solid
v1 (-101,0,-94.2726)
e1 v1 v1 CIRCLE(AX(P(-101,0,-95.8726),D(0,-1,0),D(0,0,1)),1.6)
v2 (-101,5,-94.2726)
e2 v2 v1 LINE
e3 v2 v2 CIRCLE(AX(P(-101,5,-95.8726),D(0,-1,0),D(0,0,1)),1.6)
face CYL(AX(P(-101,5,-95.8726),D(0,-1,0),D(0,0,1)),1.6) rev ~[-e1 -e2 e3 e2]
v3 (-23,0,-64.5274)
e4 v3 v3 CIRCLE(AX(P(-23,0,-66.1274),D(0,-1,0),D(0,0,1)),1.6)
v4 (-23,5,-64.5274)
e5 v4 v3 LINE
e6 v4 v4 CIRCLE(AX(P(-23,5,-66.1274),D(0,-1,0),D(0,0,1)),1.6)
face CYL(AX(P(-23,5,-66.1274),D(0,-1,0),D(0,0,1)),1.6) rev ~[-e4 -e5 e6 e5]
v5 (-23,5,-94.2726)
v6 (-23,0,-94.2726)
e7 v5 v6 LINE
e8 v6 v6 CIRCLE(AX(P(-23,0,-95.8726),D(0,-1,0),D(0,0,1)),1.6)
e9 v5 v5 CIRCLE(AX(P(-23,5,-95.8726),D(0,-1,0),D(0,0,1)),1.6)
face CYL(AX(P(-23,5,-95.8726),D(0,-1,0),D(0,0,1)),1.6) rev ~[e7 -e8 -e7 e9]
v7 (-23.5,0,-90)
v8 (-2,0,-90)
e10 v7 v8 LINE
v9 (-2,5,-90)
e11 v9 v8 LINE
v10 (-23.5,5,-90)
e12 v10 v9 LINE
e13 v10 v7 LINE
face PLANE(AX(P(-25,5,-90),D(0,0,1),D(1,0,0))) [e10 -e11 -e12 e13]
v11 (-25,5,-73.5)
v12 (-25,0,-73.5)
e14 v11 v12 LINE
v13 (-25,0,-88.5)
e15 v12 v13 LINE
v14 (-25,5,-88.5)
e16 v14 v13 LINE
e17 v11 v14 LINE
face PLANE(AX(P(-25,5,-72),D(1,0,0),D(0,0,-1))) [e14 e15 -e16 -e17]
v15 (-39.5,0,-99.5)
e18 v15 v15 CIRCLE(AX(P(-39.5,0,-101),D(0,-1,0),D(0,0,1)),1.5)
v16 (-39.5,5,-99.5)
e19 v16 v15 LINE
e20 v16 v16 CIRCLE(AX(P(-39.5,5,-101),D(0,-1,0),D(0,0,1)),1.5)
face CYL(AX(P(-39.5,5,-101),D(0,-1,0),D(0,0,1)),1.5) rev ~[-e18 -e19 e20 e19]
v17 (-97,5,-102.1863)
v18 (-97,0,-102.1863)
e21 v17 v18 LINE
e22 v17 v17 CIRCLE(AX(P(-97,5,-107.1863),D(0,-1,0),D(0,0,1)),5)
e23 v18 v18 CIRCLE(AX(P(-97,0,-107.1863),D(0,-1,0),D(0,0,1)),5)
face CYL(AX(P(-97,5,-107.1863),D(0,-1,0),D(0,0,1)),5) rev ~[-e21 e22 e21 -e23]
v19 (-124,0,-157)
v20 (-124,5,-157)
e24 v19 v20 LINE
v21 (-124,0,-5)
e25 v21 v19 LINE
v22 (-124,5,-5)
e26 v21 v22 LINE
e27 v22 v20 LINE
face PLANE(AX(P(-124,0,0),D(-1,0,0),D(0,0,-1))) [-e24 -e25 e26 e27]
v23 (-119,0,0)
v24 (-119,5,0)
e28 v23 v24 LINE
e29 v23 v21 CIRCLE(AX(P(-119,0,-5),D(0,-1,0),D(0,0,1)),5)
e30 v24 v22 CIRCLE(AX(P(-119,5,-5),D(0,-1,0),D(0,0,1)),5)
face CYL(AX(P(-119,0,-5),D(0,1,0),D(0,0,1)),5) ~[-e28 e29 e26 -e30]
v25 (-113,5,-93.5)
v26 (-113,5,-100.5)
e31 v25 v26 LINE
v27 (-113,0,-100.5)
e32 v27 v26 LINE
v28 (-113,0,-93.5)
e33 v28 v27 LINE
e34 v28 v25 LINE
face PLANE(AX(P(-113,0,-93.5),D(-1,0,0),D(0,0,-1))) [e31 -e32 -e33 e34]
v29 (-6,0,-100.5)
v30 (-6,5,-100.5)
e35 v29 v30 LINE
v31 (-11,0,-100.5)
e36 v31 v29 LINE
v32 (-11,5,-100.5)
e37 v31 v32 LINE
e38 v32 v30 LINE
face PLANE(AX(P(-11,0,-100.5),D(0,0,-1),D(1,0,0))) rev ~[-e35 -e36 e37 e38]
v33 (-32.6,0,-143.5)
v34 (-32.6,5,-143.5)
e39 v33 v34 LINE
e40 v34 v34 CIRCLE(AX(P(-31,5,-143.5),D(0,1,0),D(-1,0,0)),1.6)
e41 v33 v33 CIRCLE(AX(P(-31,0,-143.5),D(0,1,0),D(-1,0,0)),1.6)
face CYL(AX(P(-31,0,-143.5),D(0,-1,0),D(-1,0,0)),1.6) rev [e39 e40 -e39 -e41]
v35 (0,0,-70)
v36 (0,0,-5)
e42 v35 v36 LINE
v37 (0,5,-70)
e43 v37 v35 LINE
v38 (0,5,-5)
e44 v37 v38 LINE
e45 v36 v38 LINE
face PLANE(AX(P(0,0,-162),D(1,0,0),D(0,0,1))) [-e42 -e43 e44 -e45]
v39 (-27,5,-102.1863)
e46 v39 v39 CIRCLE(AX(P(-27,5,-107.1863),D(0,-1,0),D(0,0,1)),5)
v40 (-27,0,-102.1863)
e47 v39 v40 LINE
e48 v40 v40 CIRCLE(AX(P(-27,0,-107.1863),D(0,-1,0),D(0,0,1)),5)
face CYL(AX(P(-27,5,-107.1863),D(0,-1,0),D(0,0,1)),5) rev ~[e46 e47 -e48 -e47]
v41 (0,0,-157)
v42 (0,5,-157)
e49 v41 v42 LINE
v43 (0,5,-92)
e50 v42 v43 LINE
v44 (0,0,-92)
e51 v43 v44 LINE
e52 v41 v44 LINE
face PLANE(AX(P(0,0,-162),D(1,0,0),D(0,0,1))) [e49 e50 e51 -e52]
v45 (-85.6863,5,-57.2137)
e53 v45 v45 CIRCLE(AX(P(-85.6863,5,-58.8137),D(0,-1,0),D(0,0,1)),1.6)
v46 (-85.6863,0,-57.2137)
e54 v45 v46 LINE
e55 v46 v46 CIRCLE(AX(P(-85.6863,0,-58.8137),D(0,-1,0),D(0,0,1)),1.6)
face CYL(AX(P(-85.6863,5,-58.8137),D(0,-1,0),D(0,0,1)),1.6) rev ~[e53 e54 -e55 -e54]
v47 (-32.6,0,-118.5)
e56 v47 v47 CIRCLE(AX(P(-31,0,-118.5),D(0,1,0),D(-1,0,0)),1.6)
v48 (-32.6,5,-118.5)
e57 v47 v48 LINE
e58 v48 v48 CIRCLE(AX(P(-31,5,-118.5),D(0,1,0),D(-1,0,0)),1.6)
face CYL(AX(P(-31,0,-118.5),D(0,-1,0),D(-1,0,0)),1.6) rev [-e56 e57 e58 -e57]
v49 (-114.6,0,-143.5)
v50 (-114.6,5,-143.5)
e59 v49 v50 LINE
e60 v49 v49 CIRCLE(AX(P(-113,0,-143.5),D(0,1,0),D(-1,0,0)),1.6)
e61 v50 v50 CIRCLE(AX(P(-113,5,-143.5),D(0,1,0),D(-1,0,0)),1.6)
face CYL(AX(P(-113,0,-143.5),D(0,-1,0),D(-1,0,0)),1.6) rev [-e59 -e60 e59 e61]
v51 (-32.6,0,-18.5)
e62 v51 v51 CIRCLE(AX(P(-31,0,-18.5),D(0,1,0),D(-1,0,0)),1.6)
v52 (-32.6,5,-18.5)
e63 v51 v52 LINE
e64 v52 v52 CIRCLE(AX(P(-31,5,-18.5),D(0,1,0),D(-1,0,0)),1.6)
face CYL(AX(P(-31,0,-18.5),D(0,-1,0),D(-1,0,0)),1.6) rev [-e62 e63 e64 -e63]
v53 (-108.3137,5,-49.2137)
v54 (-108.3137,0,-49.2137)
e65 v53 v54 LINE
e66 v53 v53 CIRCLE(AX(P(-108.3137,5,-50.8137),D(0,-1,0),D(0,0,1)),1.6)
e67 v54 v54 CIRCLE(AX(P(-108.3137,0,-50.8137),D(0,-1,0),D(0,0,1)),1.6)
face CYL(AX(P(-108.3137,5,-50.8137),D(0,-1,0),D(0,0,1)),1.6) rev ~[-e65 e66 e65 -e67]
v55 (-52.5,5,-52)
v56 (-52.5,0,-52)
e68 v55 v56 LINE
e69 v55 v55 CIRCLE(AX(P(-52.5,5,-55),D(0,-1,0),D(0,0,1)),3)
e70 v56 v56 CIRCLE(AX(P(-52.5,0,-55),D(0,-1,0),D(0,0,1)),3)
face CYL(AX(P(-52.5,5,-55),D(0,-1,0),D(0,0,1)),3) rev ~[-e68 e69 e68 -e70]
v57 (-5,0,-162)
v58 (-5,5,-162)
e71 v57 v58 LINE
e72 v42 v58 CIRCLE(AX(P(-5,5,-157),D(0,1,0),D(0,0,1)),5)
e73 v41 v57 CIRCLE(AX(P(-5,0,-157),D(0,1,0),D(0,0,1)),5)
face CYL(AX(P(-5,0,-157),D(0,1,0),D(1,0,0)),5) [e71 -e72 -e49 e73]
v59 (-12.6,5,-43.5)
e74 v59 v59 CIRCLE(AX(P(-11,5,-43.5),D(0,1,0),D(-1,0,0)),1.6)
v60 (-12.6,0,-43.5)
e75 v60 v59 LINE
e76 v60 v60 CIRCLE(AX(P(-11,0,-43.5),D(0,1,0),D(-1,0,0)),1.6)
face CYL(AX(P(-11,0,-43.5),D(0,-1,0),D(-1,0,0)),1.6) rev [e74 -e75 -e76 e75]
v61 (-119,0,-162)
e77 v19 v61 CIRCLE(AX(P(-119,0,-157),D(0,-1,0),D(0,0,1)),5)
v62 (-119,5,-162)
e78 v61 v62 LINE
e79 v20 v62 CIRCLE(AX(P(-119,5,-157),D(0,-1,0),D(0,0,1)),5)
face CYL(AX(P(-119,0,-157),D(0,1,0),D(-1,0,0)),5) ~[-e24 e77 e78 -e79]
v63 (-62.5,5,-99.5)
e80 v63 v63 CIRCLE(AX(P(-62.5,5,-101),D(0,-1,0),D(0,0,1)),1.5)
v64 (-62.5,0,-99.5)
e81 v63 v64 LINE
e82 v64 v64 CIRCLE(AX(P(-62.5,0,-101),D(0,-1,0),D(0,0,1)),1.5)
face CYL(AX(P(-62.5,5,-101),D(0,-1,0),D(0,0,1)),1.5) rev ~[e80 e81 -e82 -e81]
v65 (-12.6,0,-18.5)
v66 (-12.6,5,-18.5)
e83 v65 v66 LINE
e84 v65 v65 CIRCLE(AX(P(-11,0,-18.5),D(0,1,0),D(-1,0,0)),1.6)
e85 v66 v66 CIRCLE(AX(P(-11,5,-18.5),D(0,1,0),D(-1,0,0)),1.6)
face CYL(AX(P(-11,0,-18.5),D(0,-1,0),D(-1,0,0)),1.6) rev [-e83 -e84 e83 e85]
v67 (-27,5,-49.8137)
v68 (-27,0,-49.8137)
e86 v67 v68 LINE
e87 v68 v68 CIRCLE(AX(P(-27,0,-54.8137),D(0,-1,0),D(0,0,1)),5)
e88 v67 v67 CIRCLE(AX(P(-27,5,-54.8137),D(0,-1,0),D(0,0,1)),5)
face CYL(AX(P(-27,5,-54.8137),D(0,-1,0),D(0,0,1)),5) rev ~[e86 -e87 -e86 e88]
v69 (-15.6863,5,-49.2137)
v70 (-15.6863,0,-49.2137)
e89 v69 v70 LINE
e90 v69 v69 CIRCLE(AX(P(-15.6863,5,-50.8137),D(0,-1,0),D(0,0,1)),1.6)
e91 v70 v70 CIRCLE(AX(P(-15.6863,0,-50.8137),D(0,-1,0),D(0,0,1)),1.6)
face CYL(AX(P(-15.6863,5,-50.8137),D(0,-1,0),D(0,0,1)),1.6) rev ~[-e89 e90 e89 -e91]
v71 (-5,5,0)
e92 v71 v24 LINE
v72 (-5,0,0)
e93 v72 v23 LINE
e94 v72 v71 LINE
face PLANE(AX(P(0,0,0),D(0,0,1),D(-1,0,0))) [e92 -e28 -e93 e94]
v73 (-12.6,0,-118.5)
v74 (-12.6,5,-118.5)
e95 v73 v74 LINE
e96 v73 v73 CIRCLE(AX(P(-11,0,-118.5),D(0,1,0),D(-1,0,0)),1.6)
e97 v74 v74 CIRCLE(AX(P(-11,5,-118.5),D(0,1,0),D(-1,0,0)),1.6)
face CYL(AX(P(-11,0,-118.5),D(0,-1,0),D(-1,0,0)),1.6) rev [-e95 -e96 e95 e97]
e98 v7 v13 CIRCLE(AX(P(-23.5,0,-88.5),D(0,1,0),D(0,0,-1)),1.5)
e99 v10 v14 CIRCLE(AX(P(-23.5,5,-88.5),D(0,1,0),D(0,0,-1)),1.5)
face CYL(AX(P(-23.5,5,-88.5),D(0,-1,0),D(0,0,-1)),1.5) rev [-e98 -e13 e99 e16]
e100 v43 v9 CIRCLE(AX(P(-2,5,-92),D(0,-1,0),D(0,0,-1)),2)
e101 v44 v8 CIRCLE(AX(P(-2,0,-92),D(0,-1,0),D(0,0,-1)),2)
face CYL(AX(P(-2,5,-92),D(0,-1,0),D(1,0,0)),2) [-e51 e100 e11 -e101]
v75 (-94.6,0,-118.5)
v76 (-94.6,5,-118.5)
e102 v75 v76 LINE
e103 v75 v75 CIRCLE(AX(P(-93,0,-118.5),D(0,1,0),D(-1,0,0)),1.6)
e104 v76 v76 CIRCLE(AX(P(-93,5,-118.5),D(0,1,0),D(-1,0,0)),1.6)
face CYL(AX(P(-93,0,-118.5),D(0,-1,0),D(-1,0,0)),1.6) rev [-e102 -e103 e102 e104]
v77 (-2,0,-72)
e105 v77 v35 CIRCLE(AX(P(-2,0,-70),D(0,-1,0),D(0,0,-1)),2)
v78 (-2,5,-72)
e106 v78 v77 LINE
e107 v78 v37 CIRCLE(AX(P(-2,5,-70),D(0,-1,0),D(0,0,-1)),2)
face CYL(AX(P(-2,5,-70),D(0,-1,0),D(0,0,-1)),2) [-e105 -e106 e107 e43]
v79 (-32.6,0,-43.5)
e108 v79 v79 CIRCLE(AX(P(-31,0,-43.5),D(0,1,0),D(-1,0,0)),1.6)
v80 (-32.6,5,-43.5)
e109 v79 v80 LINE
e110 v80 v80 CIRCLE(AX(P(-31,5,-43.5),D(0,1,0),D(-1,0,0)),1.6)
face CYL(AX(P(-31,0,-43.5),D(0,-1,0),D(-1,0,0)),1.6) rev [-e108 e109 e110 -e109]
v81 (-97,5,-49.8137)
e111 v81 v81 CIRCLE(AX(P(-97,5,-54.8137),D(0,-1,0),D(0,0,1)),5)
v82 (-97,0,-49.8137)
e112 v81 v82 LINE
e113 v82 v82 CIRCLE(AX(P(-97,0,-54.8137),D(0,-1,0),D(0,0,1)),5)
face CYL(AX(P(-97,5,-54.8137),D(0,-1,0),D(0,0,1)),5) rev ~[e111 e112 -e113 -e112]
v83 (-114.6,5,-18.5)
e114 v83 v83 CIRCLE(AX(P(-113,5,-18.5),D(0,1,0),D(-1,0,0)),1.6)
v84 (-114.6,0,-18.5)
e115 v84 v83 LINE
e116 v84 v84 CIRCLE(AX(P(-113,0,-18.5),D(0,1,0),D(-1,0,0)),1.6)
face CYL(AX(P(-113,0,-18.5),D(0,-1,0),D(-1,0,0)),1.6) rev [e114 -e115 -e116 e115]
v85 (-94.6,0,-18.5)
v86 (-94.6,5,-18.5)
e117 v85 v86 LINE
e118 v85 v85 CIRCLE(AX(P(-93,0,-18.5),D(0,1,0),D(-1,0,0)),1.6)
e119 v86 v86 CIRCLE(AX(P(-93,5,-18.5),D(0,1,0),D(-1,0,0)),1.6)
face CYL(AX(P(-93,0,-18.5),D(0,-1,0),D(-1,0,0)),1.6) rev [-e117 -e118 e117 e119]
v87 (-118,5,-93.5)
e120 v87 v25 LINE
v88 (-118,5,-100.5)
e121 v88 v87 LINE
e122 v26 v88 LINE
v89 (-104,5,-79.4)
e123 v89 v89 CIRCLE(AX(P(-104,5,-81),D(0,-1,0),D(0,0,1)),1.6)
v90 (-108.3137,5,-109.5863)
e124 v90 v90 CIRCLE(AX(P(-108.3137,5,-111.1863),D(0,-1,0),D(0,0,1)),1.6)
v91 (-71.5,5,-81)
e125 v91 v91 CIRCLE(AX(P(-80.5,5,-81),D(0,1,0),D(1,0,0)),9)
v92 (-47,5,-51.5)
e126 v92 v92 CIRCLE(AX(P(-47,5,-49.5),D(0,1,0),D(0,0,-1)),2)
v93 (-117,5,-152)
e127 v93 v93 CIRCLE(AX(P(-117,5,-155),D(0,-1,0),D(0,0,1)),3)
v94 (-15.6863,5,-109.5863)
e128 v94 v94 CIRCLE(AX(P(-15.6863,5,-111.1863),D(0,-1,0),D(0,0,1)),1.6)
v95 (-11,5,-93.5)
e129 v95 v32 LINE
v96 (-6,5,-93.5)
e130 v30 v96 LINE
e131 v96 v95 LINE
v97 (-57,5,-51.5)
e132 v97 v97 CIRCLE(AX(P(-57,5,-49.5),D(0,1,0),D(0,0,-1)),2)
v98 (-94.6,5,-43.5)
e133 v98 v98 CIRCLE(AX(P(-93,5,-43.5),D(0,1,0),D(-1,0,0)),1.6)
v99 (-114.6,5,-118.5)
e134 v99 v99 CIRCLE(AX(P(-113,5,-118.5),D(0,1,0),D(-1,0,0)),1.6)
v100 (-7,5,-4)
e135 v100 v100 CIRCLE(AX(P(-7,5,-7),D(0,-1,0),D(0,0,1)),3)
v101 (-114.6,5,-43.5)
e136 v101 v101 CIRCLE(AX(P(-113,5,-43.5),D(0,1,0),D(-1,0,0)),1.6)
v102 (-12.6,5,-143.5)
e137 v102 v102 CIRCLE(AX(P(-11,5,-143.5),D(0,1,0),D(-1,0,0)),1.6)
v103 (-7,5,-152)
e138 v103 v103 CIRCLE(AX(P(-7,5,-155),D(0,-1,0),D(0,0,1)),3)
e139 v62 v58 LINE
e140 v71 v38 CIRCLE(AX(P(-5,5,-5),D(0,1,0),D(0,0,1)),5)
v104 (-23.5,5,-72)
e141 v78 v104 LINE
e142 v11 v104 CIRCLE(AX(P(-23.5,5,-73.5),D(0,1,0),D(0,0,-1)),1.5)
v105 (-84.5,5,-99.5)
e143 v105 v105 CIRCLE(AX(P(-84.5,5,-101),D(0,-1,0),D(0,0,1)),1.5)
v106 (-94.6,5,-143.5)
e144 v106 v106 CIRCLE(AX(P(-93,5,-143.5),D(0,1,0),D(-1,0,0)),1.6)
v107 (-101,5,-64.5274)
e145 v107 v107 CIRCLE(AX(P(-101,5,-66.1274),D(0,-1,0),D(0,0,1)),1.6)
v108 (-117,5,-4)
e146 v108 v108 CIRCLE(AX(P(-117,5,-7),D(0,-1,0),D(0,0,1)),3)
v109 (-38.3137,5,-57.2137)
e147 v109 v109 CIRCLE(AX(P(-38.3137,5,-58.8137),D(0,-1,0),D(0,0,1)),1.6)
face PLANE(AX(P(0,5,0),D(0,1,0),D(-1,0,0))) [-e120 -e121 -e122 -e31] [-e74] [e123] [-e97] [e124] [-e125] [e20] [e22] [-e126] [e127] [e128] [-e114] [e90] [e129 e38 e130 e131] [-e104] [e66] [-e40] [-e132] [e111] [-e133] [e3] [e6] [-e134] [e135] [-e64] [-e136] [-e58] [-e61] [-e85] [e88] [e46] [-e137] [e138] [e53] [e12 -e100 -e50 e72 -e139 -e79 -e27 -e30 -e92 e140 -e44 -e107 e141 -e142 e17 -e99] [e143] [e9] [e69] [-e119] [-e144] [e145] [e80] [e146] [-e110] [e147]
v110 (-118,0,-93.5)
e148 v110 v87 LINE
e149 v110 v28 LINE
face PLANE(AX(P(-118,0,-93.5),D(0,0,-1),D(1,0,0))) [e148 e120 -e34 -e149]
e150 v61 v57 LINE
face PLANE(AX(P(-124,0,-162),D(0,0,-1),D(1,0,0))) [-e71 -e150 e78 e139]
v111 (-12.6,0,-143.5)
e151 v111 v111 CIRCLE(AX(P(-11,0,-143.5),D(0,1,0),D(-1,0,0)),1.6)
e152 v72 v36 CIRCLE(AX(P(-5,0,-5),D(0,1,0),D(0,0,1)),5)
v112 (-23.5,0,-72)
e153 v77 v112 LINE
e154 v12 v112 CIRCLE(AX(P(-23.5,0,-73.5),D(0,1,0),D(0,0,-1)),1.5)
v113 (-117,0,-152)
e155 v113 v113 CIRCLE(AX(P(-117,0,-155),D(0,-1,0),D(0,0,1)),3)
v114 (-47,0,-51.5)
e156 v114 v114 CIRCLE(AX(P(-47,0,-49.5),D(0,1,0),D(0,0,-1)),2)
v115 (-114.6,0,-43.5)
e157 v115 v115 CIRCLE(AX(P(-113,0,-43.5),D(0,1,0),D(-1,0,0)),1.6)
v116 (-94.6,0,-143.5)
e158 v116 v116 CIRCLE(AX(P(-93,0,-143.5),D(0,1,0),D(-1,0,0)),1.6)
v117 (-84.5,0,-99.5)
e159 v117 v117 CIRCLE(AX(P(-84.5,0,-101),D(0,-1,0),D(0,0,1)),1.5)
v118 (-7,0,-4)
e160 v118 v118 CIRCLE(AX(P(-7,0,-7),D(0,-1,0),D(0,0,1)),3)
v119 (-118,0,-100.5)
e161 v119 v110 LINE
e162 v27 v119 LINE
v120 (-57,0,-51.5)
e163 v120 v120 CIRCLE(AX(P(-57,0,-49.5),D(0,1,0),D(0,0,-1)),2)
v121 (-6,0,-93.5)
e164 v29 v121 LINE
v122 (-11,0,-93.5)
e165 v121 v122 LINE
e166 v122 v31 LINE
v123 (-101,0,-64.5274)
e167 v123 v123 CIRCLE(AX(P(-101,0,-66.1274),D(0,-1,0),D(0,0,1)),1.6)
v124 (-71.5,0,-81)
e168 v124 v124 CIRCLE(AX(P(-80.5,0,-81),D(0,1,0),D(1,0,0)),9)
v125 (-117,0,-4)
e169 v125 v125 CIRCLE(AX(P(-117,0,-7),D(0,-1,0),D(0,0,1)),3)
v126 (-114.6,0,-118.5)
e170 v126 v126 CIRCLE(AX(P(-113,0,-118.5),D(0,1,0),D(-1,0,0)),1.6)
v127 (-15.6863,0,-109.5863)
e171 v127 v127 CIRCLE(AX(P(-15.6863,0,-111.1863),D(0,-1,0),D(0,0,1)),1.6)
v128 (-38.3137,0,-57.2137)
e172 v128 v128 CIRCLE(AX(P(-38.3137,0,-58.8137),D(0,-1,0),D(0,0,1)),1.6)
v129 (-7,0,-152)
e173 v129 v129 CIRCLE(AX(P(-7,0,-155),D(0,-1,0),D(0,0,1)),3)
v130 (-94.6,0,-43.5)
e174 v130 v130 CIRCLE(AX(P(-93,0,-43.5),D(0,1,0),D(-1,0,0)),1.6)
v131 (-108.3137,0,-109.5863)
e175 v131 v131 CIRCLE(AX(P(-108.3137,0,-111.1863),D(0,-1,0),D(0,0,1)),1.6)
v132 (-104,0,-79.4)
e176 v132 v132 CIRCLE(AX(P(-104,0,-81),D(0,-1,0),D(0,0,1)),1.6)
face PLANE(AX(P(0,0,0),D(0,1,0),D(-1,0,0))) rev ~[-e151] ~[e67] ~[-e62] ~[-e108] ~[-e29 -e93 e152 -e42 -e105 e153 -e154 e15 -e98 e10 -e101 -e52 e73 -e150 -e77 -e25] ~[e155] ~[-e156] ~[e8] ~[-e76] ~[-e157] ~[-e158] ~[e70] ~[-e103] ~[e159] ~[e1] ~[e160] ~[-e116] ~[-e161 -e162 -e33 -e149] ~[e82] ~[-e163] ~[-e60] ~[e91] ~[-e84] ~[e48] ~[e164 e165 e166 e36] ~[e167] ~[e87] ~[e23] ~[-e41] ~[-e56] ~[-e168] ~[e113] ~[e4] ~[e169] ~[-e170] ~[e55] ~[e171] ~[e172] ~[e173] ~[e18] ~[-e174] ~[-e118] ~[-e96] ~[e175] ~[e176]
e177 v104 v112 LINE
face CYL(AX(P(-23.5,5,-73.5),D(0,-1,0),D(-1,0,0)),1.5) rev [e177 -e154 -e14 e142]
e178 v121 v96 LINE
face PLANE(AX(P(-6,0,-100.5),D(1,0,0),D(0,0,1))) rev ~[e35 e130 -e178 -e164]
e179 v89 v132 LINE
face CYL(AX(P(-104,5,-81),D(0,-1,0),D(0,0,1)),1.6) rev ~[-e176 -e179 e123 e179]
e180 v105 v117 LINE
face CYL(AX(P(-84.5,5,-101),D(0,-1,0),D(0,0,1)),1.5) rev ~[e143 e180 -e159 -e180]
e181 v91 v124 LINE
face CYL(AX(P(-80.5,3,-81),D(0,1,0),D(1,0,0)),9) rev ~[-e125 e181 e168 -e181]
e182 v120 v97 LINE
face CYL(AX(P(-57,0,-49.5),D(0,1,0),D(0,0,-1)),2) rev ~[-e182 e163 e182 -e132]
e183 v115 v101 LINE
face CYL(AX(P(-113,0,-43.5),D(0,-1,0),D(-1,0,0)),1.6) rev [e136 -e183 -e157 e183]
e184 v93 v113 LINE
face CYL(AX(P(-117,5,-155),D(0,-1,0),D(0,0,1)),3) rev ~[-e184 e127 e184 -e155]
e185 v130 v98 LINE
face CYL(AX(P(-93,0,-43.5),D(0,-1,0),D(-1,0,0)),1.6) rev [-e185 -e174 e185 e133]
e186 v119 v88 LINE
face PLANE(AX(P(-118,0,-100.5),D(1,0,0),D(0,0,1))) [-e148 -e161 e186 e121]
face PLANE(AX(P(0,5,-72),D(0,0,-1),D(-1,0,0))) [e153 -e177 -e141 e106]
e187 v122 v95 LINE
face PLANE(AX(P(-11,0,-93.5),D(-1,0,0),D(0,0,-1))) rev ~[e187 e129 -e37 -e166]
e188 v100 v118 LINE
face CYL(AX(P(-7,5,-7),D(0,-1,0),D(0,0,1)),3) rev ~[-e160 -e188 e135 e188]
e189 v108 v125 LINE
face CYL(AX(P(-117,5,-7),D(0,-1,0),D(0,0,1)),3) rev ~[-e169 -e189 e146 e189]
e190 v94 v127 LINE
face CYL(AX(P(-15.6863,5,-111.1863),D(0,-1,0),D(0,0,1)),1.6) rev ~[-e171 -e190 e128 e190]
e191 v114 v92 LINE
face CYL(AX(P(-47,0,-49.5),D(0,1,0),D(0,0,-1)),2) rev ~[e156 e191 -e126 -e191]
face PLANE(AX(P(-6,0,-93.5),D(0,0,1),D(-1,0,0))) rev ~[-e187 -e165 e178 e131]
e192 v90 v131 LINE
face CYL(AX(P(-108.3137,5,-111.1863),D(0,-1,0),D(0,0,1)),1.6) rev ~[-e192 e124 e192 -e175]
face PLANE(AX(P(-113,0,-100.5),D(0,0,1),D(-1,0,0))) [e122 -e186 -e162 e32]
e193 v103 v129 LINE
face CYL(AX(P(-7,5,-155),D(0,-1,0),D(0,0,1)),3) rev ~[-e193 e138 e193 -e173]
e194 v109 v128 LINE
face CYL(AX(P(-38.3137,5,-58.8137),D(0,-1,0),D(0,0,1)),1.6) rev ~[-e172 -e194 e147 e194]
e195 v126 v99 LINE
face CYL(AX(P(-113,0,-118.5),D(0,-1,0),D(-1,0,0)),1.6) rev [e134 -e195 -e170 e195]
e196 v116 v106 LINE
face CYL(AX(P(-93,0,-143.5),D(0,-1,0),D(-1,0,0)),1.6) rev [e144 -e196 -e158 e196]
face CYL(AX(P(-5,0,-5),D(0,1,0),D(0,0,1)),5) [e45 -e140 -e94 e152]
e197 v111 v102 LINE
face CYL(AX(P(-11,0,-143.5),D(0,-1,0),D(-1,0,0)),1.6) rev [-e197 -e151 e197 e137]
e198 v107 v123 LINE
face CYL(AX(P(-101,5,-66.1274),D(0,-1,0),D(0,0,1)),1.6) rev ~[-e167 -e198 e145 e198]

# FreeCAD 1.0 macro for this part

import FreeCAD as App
import Part
import Sketcher

V = App.Vector


def edges_at(feature, points):
    """Names of the edges that pass closest to the given points."""
    edges = feature.Shape.Edges
    near = lambda p: min(range(len(edges)), key=lambda i: edges[i].distToShape(Part.Vertex(*p))[0])
    return sorted({f"Edge{near(p) + 1}" for p in points})

doc = App.newDocument("Part")
body = doc.addObject("PartDesign::Body", "Body")

sketch1 = body.newObject("Sketcher::SketchObject", "Sketch")
sketch1.AttachmentSupport = (doc.getObject("XZ_Plane"), [""])
sketch1.MapMode = "FlatFace"
sketch1.addGeometry([
    Part.LineSegment(V(-124, 0, 0), V(0, 0, 0)),
    Part.LineSegment(V(0, 0, 0), V(0, -162, 0)),
    Part.LineSegment(V(0, -162, 0), V(-124, -162, 0)),
    Part.LineSegment(V(-124, -162, 0), V(-124, 0, 0)),
    Part.Circle(V(-11, -143.5, 0), V(0, 0, 1), 1.6),
    Part.Circle(V(-31, -143.5, 0), V(0, 0, 1), 1.6),
    Part.Circle(V(-11, -118.5, 0), V(0, 0, 1), 1.6),
    Part.LineSegment(V(-6, -100.5, 0), V(-6, -93.5, 0)),
    Part.LineSegment(V(-6, -93.5, 0), V(-11, -93.5, 0)),
    Part.LineSegment(V(-11, -93.5, 0), V(-11, -100.5, 0)),
    Part.LineSegment(V(-11, -100.5, 0), V(-6, -100.5, 0)),
    Part.Circle(V(-31, -118.5, 0), V(0, 0, 1), 1.6),
    Part.Circle(V(-93, -143.5, 0), V(0, 0, 1), 1.6),
    Part.Circle(V(-113, -143.5, 0), V(0, 0, 1), 1.6),
    Part.Circle(V(-93, -118.5, 0), V(0, 0, 1), 1.6),
    Part.Circle(V(-113, -118.5, 0), V(0, 0, 1), 1.6),
    Part.LineSegment(V(-113, -93.5, 0), V(-118, -93.5, 0)),
    Part.LineSegment(V(-118, -93.5, 0), V(-118, -100.5, 0)),
    Part.LineSegment(V(-118, -100.5, 0), V(-113, -100.5, 0)),
    Part.LineSegment(V(-113, -100.5, 0), V(-113, -93.5, 0)),
    Part.Circle(V(-11, -43.5, 0), V(0, 0, 1), 1.6),
    Part.Circle(V(-31, -43.5, 0), V(0, 0, 1), 1.6),
    Part.Circle(V(-11, -18.5, 0), V(0, 0, 1), 1.6),
    Part.Circle(V(-31, -18.5, 0), V(0, 0, 1), 1.6),
    Part.Circle(V(-93, -43.5, 0), V(0, 0, 1), 1.6),
    Part.Circle(V(-113, -43.5, 0), V(0, 0, 1), 1.6),
    Part.Circle(V(-93, -18.5, 0), V(0, 0, 1), 1.6),
    Part.Circle(V(-113, -18.5, 0), V(0, 0, 1), 1.6),
], False)
sketch1.addConstraint([
    Sketcher.Constraint("Coincident", 0, 2, 1, 1),
    Sketcher.Constraint("Coincident", 1, 2, 2, 1),
    Sketcher.Constraint("Coincident", 2, 2, 3, 1),
    Sketcher.Constraint("Coincident", 3, 2, 0, 1),
    Sketcher.Constraint("Coincident", 7, 2, 8, 1),
    Sketcher.Constraint("Coincident", 8, 2, 9, 1),
    Sketcher.Constraint("Coincident", 9, 2, 10, 1),
    Sketcher.Constraint("Coincident", 10, 2, 7, 1),
    Sketcher.Constraint("Coincident", 16, 2, 17, 1),
    Sketcher.Constraint("Coincident", 17, 2, 18, 1),
    Sketcher.Constraint("Coincident", 18, 2, 19, 1),
    Sketcher.Constraint("Coincident", 19, 2, 16, 1),
    Sketcher.Constraint("Horizontal", 0),
    Sketcher.Constraint("Vertical", 1),
    Sketcher.Constraint("Horizontal", 2),
    Sketcher.Constraint("Vertical", 3),
    Sketcher.Constraint("Vertical", 7),
    Sketcher.Constraint("Horizontal", 8),
    Sketcher.Constraint("Vertical", 9),
    Sketcher.Constraint("Horizontal", 10),
    Sketcher.Constraint("Horizontal", 16),
    Sketcher.Constraint("Vertical", 17),
    Sketcher.Constraint("Horizontal", 18),
    Sketcher.Constraint("Vertical", 19),
    Sketcher.Constraint("Coincident", 0, 2, -1, 1),
    Sketcher.Constraint("Equal", 4, 5),
    Sketcher.Constraint("Equal", 5, 6),
    Sketcher.Constraint("Equal", 6, 11),
    Sketcher.Constraint("Equal", 11, 12),
    Sketcher.Constraint("Equal", 12, 13),
    Sketcher.Constraint("Equal", 13, 14),
    Sketcher.Constraint("Equal", 14, 15),
    Sketcher.Constraint("Equal", 15, 20),
    Sketcher.Constraint("Equal", 20, 21),
    Sketcher.Constraint("Equal", 21, 22),
    Sketcher.Constraint("Equal", 22, 23),
    Sketcher.Constraint("Equal", 23, 24),
    Sketcher.Constraint("Equal", 24, 25),
    Sketcher.Constraint("Equal", 25, 26),
    Sketcher.Constraint("Equal", 26, 27),
    Sketcher.Constraint("Horizontal", 4, 3, 5, 3),
    Sketcher.Constraint("Horizontal", 6, 3, 11, 3),
    Sketcher.Constraint("Horizontal", 5, 3, 12, 3),
    Sketcher.Constraint("Horizontal", 12, 3, 13, 3),
    Sketcher.Constraint("Horizontal", 11, 3, 14, 3),
    Sketcher.Constraint("Horizontal", 14, 3, 15, 3),
    Sketcher.Constraint("Horizontal", 20, 3, 21, 3),
    Sketcher.Constraint("Horizontal", 22, 3, 23, 3),
    Sketcher.Constraint("Horizontal", 21, 3, 24, 3),
    Sketcher.Constraint("Horizontal", 24, 3, 25, 3),
    Sketcher.Constraint("Horizontal", 23, 3, 26, 3),
    Sketcher.Constraint("Horizontal", 26, 3, 27, 3),
    Sketcher.Constraint("Horizontal", 8, 2, 16, 2),
    Sketcher.Constraint("Horizontal", 10, 2, 17, 2),
    Sketcher.Constraint("Vertical", 4, 3, 6, 3),
    Sketcher.Constraint("Vertical", 5, 3, 11, 3),
    Sketcher.Constraint("Vertical", 12, 3, 14, 3),
    Sketcher.Constraint("Vertical", 13, 3, 15, 3),
    Sketcher.Constraint("Vertical", 6, 3, 20, 3),
    Sketcher.Constraint("Vertical", 11, 3, 21, 3),
    Sketcher.Constraint("Vertical", 20, 3, 22, 3),
    Sketcher.Constraint("Vertical", 21, 3, 23, 3),
    Sketcher.Constraint("Vertical", 14, 3, 24, 3),
    Sketcher.Constraint("Vertical", 15, 3, 25, 3),
    Sketcher.Constraint("Vertical", 24, 3, 26, 3),
    Sketcher.Constraint("Vertical", 25, 3, 27, 3),
    Sketcher.Constraint("Vertical", 22, 3, 8, 2),
    Sketcher.Constraint("Vertical", 27, 3, 18, 2),
    Sketcher.Constraint("Equal", 10, 16),
    Sketcher.Constraint("Diameter", 4, 3.2),
    Sketcher.Constraint("DistanceX", 0, 1, 0, 2, 124.0),
    Sketcher.Constraint("DistanceX", 8, 2, 8, 1, 5.0),
    Sketcher.Constraint("DistanceY", 1, 2, 1, 1, 162.0),
    Sketcher.Constraint("DistanceY", 7, 1, 7, 2, 7.0),
    Sketcher.Constraint("DistanceX", 4, 3, -1, 1, 11.0),
    Sketcher.Constraint("DistanceX", 5, 3, 4, 3, 20.0),
    Sketcher.Constraint("DistanceY", 4, 3, 6, 3, 25.0),
    Sketcher.Constraint("DistanceX", 12, 3, 5, 3, 62.0),
    Sketcher.Constraint("DistanceX", 13, 3, 12, 3, 20.0),
    Sketcher.Constraint("DistanceY", 20, 3, 22, 3, 25.0),
    Sketcher.Constraint("DistanceY", 6, 3, 7, 2, 25.0),
    Sketcher.Constraint("DistanceY", 22, 3, -1, 1, 18.5),
    Sketcher.Constraint("DistanceY", 1, 2, 4, 3, 18.5),
])
pad1 = body.newObject("PartDesign::Pad", "Pad")
pad1.Profile = sketch1
pad1.Length = 5
pad1.Reversed = True
doc.recompute()

fillet = body.newObject("PartDesign::Fillet", "Fillet")
fillet.Base = (pad1, edges_at(pad1, [
    (0, 2.5, 0),
    (0, 2.5, -162),
    (-124, 2.5, -162),
    (-124, 2.5, 0),
]))
fillet.Radius = 5

sketch2 = body.newObject("Sketcher::SketchObject", "Sketch001")
sketch2.AttachmentSupport = (doc.getObject("XZ_Plane"), [""])
sketch2.MapMode = "FlatFace"
sketch2.AttachmentOffset = App.Placement(V(0, 0, -5), App.Rotation())
sketch2.addGeometry([
    Part.Circle(V(-108.3, -50.8, 0), V(0, 0, 1), 1.6),
    Part.Circle(V(-101, -66.1, 0), V(0, 0, 1), 1.6),
    Part.Circle(V(-85.7, -58.8, 0), V(0, 0, 1), 1.6),
    Part.Circle(V(-108.3, -111.2, 0), V(0, 0, 1), 1.6),
    Part.Circle(V(-101, -95.9, 0), V(0, 0, 1), 1.6),
    Part.Circle(V(-23, -95.9, 0), V(0, 0, 1), 1.6),
    Part.Circle(V(-15.7, -111.2, 0), V(0, 0, 1), 1.6),
    Part.Circle(V(-38.3, -58.8, 0), V(0, 0, 1), 1.6),
    Part.Circle(V(-23, -66.1, 0), V(0, 0, 1), 1.6),
    Part.Circle(V(-15.7, -50.8, 0), V(0, 0, 1), 1.6),
], False)
sketch2.addConstraint([
    Sketcher.Constraint("Equal", 0, 1),
    Sketcher.Constraint("Equal", 1, 2),
    Sketcher.Constraint("Equal", 2, 3),
    Sketcher.Constraint("Equal", 3, 4),
    Sketcher.Constraint("Equal", 4, 5),
    Sketcher.Constraint("Equal", 5, 6),
    Sketcher.Constraint("Equal", 6, 7),
    Sketcher.Constraint("Equal", 7, 8),
    Sketcher.Constraint("Equal", 8, 9),
    Sketcher.Constraint("Horizontal", 4, 3, 5, 3),
    Sketcher.Constraint("Horizontal", 3, 3, 6, 3),
    Sketcher.Constraint("Horizontal", 2, 3, 7, 3),
    Sketcher.Constraint("Horizontal", 1, 3, 8, 3),
    Sketcher.Constraint("Horizontal", 0, 3, 9, 3),
    Sketcher.Constraint("Vertical", 0, 3, 3, 3),
    Sketcher.Constraint("Vertical", 1, 3, 4, 3),
    Sketcher.Constraint("Vertical", 5, 3, 8, 3),
    Sketcher.Constraint("Vertical", 6, 3, 9, 3),
    Sketcher.Constraint("Diameter", 0, 3.2),
    Sketcher.Constraint("DistanceX", 1, 3, -1, 1, 101.0),
    Sketcher.Constraint("DistanceX", 5, 3, -1, 1, 23.0),
    Sketcher.Constraint("DistanceY", 2, 3, 0, 3, 8.0),
    Sketcher.Constraint("DistanceX", 2, 3, 6, 3, 70.0),
    Sketcher.Constraint("DistanceX", 0, 3, 7, 3, 70.0),
    Sketcher.Constraint("DistanceY", 3, 3, 1, 3, 45.059),
    Sketcher.Constraint("DistanceY", 4, 3, 2, 3, 37.059),
    Sketcher.Constraint("DistanceX", 0, 3, -1, 1, 108.3137),
    Sketcher.Constraint("DistanceY", 0, 3, -1, 1, 50.8137),
    Sketcher.Constraint("DistanceY", 1, 3, -1, 1, 66.1274),
    Sketcher.Constraint("DistanceX", 2, 3, -1, 1, 85.6863),
])
doc.recompute()
hole = body.newObject("PartDesign::Hole", "Hole")
hole.Profile = sketch2
hole.ThreadType = "None"
hole.Diameter = 3.2
hole.DepthType = "ThroughAll"
hole.Reversed = True

sketch3 = body.newObject("Sketcher::SketchObject", "Sketch002")
sketch3.AttachmentSupport = (doc.getObject("XZ_Plane"), [""])
sketch3.MapMode = "FlatFace"
sketch3.AttachmentOffset = App.Placement(V(0, 0, -5), App.Rotation())
sketch3.addGeometry([
    Part.Circle(V(-97, -55, 0), V(0, 0, 1), 5),
    Part.Circle(V(-97, -107, 0), V(0, 0, 1), 5),
    Part.Circle(V(-27, -107, 0), V(0, 0, 1), 5),
    Part.Circle(V(-27, -55, 0), V(0, 0, 1), 5),
], False)
sketch3.addConstraint([
    Sketcher.Constraint("Equal", 0, 1),
    Sketcher.Constraint("Equal", 1, 2),
    Sketcher.Constraint("Equal", 2, 3),
    Sketcher.Constraint("Horizontal", 1, 3, 2, 3),
    Sketcher.Constraint("Horizontal", 0, 3, 3, 3),
    Sketcher.Constraint("Vertical", 0, 3, 1, 3),
    Sketcher.Constraint("Vertical", 2, 3, 3, 3),
    Sketcher.Constraint("Diameter", 0, 10.0),
    Sketcher.Constraint("DistanceX", 0, 3, -1, 1, 97.0),
    Sketcher.Constraint("DistanceX", 2, 3, -1, 1, 27.0),
    Sketcher.Constraint("DistanceY", 0, 3, -1, 1, 54.8137),
    Sketcher.Constraint("DistanceY", 1, 3, -1, 1, 107.1863),
])
doc.recompute()
hole2 = body.newObject("PartDesign::Hole", "Hole001")
hole2.Profile = sketch3
hole2.ThreadType = "None"
hole2.Diameter = 10
hole2.DepthType = "ThroughAll"
hole2.Reversed = True

sketch4 = body.newObject("Sketcher::SketchObject", "Sketch003")
sketch4.AttachmentSupport = (doc.getObject("XZ_Plane"), [""])
sketch4.MapMode = "FlatFace"
sketch4.AttachmentOffset = App.Placement(V(0, 0, -5), App.Rotation())
sketch4.addGeometry(Part.Circle(V(-80, -81, 0), V(0, 0, 1), 9), False)
sketch4.addConstraint([
    Sketcher.Constraint("Diameter", 0, 18.0),
    Sketcher.Constraint("DistanceY", 0, 3, -1, 1, 81.0),
    Sketcher.Constraint("DistanceX", 0, 3, -1, 1, 80.5),
])
pocket1 = body.newObject("PartDesign::Pocket", "Pocket")
pocket1.Profile = sketch4
pocket1.Length = 2
pocket1.Reversed = True

sketch5 = body.newObject("Sketcher::SketchObject", "Sketch004")
sketch5.AttachmentSupport = (doc.getObject("XZ_Plane"), [""])
sketch5.MapMode = "FlatFace"
sketch5.AttachmentOffset = App.Placement(V(0, 0, -3), App.Rotation())
sketch5.addGeometry(Part.Circle(V(-80, -81, 0), V(0, 0, 1), 9), False)
sketch5.addConstraint([
    Sketcher.Constraint("Diameter", 0, 18.0),
    Sketcher.Constraint("DistanceY", 0, 3, -1, 1, 81.0),
    Sketcher.Constraint("DistanceX", 0, 3, -1, 1, 80.5),
])
pocket2 = body.newObject("PartDesign::Pocket", "Pocket001")
pocket2.Profile = sketch5
pocket2.Length = 3
pocket2.Reversed = True

sketch6 = body.newObject("Sketcher::SketchObject", "Sketch005")
sketch6.AttachmentSupport = (doc.getObject("XZ_Plane"), [""])
sketch6.MapMode = "FlatFace"
sketch6.AttachmentOffset = App.Placement(V(0, 0, -5), App.Rotation())
sketch6.addGeometry([
    Part.Circle(V(-84.5, -101, 0), V(0, 0, 1), 1.5),
    Part.Circle(V(-62.5, -101, 0), V(0, 0, 1), 1.5),
    Part.Circle(V(-39.5, -101, 0), V(0, 0, 1), 1.5),
], False)
sketch6.addConstraint([
    Sketcher.Constraint("Equal", 0, 1),
    Sketcher.Constraint("Equal", 1, 2),
    Sketcher.Constraint("Horizontal", 0, 3, 1, 3),
    Sketcher.Constraint("Horizontal", 1, 3, 2, 3),
    Sketcher.Constraint("Diameter", 0, 3.0),
    Sketcher.Constraint("DistanceY", 0, 3, -1, 1, 101.0),
    Sketcher.Constraint("DistanceX", 0, 3, 1, 3, 22.0),
    Sketcher.Constraint("DistanceX", 1, 3, 2, 3, 23.0),
    Sketcher.Constraint("DistanceX", 0, 3, -1, 1, 84.5),
])
doc.recompute()
hole3 = body.newObject("PartDesign::Hole", "Hole002")
hole3.Profile = sketch6
hole3.ThreadType = "None"
hole3.Diameter = 3
hole3.DepthType = "ThroughAll"
hole3.Reversed = True

sketch7 = body.newObject("Sketcher::SketchObject", "Sketch006")
sketch7.AttachmentSupport = (doc.getObject("XZ_Plane"), [""])
sketch7.MapMode = "FlatFace"
sketch7.AttachmentOffset = App.Placement(V(0, 0, -5), App.Rotation())
sketch7.addGeometry([
    Part.Circle(V(-7, -7, 0), V(0, 0, 1), 3),
    Part.Circle(V(-117, -7, 0), V(0, 0, 1), 3),
    Part.Circle(V(-117, -155, 0), V(0, 0, 1), 3),
    Part.Circle(V(-7, -155, 0), V(0, 0, 1), 3),
], False)
sketch7.addConstraint([
    Sketcher.Constraint("Equal", 0, 1),
    Sketcher.Constraint("Equal", 1, 2),
    Sketcher.Constraint("Equal", 2, 3),
    Sketcher.Constraint("Horizontal", 0, 3, 1, 3),
    Sketcher.Constraint("Horizontal", 2, 3, 3, 3),
    Sketcher.Constraint("Vertical", 1, 3, 2, 3),
    Sketcher.Constraint("Vertical", 0, 3, 3, 3),
    Sketcher.Constraint("Diameter", 0, 6.0),
    Sketcher.Constraint("DistanceX", 0, 3, -1, 1, 7.0),
    Sketcher.Constraint("DistanceY", 0, 3, -1, 1, 7.0),
    Sketcher.Constraint("DistanceX", 1, 3, -1, 1, 117.0),
    Sketcher.Constraint("DistanceY", 2, 3, -1, 1, 155.0),
])
doc.recompute()
hole4 = body.newObject("PartDesign::Hole", "Hole003")
hole4.Profile = sketch7
hole4.ThreadType = "None"
hole4.Diameter = 6
hole4.DepthType = "ThroughAll"
hole4.Reversed = True

sketch8 = body.newObject("Sketcher::SketchObject", "Sketch007")
sketch8.AttachmentSupport = (doc.getObject("XZ_Plane"), [""])
sketch8.MapMode = "FlatFace"
sketch8.AttachmentOffset = App.Placement(V(0, 0, -5), App.Rotation())
sketch8.addGeometry([
    Part.LineSegment(V(-25, -72, 0), V(0, -72, 0)),
    Part.LineSegment(V(0, -72, 0), V(0, -90, 0)),
    Part.LineSegment(V(0, -90, 0), V(-25, -90, 0)),
    Part.LineSegment(V(-25, -90, 0), V(-25, -72, 0)),
], False)
sketch8.addConstraint([
    Sketcher.Constraint("Coincident", 0, 2, 1, 1),
    Sketcher.Constraint("Coincident", 1, 2, 2, 1),
    Sketcher.Constraint("Coincident", 2, 2, 3, 1),
    Sketcher.Constraint("Coincident", 3, 2, 0, 1),
    Sketcher.Constraint("Horizontal", 0),
    Sketcher.Constraint("Vertical", 1),
    Sketcher.Constraint("Horizontal", 2),
    Sketcher.Constraint("Vertical", 3),
    Sketcher.Constraint("PointOnObject", 0, 2, -2),
    Sketcher.Constraint("DistanceX", 0, 1, 0, 2, 25.0),
    Sketcher.Constraint("DistanceY", 1, 2, 1, 1, 18.0),
    Sketcher.Constraint("DistanceY", 0, 2, -1, 1, 72.0),
])
pocket3 = body.newObject("PartDesign::Pocket", "Pocket002")
pocket3.Profile = sketch8
pocket3.Length = 10
pocket3.Reversed = True
doc.recompute()

fillet2 = body.newObject("PartDesign::Fillet", "Fillet001")
fillet2.Base = (pocket3, edges_at(pocket3, [(0, 2.5, -90), (0, 2.5, -72)]))
fillet2.Radius = 2

sketch9 = body.newObject("Sketcher::SketchObject", "Sketch008")
sketch9.AttachmentSupport = (doc.getObject("XZ_Plane"), [""])
sketch9.MapMode = "FlatFace"
sketch9.addGeometry([
    Part.Circle(V(-47, -49.5, 0), V(0, 0, 1), 2),
    Part.Circle(V(-57, -49.5, 0), V(0, 0, 1), 2),
], False)
sketch9.addConstraint([
    Sketcher.Constraint("Equal", 0, 1),
    Sketcher.Constraint("Horizontal", 0, 3, 1, 3),
    Sketcher.Constraint("Diameter", 0, 4.0),
    Sketcher.Constraint("DistanceX", 0, 3, -1, 1, 47.0),
    Sketcher.Constraint("DistanceX", 1, 3, -1, 1, 57.0),
    Sketcher.Constraint("DistanceY", 0, 3, -1, 1, 49.5),
])
doc.recompute()
hole5 = body.newObject("PartDesign::Hole", "Hole004")
hole5.Profile = sketch9
hole5.ThreadType = "None"
hole5.Diameter = 4
hole5.DepthType = "Dimension"
hole5.Depth = 20
hole5.DrillPoint = "Angled"
hole5.DrillPointAngle = 118

sketch10 = body.newObject("Sketcher::SketchObject", "Sketch009")
sketch10.AttachmentSupport = (doc.getObject("XZ_Plane"), [""])
sketch10.MapMode = "FlatFace"
sketch10.AttachmentOffset = App.Placement(V(0, 0, -5), App.Rotation())
sketch10.addGeometry(Part.Circle(V(-104, -81, 0), V(0, 0, 1), 1.6), False)
sketch10.addConstraint([
    Sketcher.Constraint("Diameter", 0, 3.2),
    Sketcher.Constraint("DistanceX", 0, 3, -1, 1, 104.0),
    Sketcher.Constraint("DistanceY", 0, 3, -1, 1, 81.0),
])
doc.recompute()
hole6 = body.newObject("PartDesign::Hole", "Hole005")
hole6.Profile = sketch10
hole6.ThreadType = "None"
hole6.Diameter = 3.2
hole6.DepthType = "Dimension"
hole6.Depth = 20
hole6.DrillPoint = "Angled"
hole6.DrillPointAngle = 118
hole6.Reversed = True

sketch11 = body.newObject("Sketcher::SketchObject", "Sketch010")
sketch11.AttachmentSupport = (doc.getObject("XZ_Plane"), [""])
sketch11.MapMode = "FlatFace"
sketch11.AttachmentOffset = App.Placement(V(0, 0, -5), App.Rotation())
sketch11.addGeometry(Part.Circle(V(-52.5, -55, 0), V(0, 0, 1), 3), False)
sketch11.addConstraint([
    Sketcher.Constraint("Diameter", 0, 6.0),
    Sketcher.Constraint("DistanceY", 0, 3, -1, 1, 55.0),
    Sketcher.Constraint("DistanceX", 0, 3, -1, 1, 52.5),
])
doc.recompute()
hole7 = body.newObject("PartDesign::Hole", "Hole006")
hole7.Profile = sketch11
hole7.ThreadType = "None"
hole7.Diameter = 6
hole7.DepthType = "Dimension"
hole7.Depth = 20
hole7.DrillPoint = "Angled"
hole7.DrillPointAngle = 118
hole7.Reversed = True
doc.recompute()

fillet3 = body.newObject("PartDesign::Fillet", "Fillet002")
fillet3.Base = (hole7, edges_at(hole7, [(-25, 2.5, -72), (-25, 2.5, -90)]))
fillet3.Radius = 1.5

doc.recompute()
